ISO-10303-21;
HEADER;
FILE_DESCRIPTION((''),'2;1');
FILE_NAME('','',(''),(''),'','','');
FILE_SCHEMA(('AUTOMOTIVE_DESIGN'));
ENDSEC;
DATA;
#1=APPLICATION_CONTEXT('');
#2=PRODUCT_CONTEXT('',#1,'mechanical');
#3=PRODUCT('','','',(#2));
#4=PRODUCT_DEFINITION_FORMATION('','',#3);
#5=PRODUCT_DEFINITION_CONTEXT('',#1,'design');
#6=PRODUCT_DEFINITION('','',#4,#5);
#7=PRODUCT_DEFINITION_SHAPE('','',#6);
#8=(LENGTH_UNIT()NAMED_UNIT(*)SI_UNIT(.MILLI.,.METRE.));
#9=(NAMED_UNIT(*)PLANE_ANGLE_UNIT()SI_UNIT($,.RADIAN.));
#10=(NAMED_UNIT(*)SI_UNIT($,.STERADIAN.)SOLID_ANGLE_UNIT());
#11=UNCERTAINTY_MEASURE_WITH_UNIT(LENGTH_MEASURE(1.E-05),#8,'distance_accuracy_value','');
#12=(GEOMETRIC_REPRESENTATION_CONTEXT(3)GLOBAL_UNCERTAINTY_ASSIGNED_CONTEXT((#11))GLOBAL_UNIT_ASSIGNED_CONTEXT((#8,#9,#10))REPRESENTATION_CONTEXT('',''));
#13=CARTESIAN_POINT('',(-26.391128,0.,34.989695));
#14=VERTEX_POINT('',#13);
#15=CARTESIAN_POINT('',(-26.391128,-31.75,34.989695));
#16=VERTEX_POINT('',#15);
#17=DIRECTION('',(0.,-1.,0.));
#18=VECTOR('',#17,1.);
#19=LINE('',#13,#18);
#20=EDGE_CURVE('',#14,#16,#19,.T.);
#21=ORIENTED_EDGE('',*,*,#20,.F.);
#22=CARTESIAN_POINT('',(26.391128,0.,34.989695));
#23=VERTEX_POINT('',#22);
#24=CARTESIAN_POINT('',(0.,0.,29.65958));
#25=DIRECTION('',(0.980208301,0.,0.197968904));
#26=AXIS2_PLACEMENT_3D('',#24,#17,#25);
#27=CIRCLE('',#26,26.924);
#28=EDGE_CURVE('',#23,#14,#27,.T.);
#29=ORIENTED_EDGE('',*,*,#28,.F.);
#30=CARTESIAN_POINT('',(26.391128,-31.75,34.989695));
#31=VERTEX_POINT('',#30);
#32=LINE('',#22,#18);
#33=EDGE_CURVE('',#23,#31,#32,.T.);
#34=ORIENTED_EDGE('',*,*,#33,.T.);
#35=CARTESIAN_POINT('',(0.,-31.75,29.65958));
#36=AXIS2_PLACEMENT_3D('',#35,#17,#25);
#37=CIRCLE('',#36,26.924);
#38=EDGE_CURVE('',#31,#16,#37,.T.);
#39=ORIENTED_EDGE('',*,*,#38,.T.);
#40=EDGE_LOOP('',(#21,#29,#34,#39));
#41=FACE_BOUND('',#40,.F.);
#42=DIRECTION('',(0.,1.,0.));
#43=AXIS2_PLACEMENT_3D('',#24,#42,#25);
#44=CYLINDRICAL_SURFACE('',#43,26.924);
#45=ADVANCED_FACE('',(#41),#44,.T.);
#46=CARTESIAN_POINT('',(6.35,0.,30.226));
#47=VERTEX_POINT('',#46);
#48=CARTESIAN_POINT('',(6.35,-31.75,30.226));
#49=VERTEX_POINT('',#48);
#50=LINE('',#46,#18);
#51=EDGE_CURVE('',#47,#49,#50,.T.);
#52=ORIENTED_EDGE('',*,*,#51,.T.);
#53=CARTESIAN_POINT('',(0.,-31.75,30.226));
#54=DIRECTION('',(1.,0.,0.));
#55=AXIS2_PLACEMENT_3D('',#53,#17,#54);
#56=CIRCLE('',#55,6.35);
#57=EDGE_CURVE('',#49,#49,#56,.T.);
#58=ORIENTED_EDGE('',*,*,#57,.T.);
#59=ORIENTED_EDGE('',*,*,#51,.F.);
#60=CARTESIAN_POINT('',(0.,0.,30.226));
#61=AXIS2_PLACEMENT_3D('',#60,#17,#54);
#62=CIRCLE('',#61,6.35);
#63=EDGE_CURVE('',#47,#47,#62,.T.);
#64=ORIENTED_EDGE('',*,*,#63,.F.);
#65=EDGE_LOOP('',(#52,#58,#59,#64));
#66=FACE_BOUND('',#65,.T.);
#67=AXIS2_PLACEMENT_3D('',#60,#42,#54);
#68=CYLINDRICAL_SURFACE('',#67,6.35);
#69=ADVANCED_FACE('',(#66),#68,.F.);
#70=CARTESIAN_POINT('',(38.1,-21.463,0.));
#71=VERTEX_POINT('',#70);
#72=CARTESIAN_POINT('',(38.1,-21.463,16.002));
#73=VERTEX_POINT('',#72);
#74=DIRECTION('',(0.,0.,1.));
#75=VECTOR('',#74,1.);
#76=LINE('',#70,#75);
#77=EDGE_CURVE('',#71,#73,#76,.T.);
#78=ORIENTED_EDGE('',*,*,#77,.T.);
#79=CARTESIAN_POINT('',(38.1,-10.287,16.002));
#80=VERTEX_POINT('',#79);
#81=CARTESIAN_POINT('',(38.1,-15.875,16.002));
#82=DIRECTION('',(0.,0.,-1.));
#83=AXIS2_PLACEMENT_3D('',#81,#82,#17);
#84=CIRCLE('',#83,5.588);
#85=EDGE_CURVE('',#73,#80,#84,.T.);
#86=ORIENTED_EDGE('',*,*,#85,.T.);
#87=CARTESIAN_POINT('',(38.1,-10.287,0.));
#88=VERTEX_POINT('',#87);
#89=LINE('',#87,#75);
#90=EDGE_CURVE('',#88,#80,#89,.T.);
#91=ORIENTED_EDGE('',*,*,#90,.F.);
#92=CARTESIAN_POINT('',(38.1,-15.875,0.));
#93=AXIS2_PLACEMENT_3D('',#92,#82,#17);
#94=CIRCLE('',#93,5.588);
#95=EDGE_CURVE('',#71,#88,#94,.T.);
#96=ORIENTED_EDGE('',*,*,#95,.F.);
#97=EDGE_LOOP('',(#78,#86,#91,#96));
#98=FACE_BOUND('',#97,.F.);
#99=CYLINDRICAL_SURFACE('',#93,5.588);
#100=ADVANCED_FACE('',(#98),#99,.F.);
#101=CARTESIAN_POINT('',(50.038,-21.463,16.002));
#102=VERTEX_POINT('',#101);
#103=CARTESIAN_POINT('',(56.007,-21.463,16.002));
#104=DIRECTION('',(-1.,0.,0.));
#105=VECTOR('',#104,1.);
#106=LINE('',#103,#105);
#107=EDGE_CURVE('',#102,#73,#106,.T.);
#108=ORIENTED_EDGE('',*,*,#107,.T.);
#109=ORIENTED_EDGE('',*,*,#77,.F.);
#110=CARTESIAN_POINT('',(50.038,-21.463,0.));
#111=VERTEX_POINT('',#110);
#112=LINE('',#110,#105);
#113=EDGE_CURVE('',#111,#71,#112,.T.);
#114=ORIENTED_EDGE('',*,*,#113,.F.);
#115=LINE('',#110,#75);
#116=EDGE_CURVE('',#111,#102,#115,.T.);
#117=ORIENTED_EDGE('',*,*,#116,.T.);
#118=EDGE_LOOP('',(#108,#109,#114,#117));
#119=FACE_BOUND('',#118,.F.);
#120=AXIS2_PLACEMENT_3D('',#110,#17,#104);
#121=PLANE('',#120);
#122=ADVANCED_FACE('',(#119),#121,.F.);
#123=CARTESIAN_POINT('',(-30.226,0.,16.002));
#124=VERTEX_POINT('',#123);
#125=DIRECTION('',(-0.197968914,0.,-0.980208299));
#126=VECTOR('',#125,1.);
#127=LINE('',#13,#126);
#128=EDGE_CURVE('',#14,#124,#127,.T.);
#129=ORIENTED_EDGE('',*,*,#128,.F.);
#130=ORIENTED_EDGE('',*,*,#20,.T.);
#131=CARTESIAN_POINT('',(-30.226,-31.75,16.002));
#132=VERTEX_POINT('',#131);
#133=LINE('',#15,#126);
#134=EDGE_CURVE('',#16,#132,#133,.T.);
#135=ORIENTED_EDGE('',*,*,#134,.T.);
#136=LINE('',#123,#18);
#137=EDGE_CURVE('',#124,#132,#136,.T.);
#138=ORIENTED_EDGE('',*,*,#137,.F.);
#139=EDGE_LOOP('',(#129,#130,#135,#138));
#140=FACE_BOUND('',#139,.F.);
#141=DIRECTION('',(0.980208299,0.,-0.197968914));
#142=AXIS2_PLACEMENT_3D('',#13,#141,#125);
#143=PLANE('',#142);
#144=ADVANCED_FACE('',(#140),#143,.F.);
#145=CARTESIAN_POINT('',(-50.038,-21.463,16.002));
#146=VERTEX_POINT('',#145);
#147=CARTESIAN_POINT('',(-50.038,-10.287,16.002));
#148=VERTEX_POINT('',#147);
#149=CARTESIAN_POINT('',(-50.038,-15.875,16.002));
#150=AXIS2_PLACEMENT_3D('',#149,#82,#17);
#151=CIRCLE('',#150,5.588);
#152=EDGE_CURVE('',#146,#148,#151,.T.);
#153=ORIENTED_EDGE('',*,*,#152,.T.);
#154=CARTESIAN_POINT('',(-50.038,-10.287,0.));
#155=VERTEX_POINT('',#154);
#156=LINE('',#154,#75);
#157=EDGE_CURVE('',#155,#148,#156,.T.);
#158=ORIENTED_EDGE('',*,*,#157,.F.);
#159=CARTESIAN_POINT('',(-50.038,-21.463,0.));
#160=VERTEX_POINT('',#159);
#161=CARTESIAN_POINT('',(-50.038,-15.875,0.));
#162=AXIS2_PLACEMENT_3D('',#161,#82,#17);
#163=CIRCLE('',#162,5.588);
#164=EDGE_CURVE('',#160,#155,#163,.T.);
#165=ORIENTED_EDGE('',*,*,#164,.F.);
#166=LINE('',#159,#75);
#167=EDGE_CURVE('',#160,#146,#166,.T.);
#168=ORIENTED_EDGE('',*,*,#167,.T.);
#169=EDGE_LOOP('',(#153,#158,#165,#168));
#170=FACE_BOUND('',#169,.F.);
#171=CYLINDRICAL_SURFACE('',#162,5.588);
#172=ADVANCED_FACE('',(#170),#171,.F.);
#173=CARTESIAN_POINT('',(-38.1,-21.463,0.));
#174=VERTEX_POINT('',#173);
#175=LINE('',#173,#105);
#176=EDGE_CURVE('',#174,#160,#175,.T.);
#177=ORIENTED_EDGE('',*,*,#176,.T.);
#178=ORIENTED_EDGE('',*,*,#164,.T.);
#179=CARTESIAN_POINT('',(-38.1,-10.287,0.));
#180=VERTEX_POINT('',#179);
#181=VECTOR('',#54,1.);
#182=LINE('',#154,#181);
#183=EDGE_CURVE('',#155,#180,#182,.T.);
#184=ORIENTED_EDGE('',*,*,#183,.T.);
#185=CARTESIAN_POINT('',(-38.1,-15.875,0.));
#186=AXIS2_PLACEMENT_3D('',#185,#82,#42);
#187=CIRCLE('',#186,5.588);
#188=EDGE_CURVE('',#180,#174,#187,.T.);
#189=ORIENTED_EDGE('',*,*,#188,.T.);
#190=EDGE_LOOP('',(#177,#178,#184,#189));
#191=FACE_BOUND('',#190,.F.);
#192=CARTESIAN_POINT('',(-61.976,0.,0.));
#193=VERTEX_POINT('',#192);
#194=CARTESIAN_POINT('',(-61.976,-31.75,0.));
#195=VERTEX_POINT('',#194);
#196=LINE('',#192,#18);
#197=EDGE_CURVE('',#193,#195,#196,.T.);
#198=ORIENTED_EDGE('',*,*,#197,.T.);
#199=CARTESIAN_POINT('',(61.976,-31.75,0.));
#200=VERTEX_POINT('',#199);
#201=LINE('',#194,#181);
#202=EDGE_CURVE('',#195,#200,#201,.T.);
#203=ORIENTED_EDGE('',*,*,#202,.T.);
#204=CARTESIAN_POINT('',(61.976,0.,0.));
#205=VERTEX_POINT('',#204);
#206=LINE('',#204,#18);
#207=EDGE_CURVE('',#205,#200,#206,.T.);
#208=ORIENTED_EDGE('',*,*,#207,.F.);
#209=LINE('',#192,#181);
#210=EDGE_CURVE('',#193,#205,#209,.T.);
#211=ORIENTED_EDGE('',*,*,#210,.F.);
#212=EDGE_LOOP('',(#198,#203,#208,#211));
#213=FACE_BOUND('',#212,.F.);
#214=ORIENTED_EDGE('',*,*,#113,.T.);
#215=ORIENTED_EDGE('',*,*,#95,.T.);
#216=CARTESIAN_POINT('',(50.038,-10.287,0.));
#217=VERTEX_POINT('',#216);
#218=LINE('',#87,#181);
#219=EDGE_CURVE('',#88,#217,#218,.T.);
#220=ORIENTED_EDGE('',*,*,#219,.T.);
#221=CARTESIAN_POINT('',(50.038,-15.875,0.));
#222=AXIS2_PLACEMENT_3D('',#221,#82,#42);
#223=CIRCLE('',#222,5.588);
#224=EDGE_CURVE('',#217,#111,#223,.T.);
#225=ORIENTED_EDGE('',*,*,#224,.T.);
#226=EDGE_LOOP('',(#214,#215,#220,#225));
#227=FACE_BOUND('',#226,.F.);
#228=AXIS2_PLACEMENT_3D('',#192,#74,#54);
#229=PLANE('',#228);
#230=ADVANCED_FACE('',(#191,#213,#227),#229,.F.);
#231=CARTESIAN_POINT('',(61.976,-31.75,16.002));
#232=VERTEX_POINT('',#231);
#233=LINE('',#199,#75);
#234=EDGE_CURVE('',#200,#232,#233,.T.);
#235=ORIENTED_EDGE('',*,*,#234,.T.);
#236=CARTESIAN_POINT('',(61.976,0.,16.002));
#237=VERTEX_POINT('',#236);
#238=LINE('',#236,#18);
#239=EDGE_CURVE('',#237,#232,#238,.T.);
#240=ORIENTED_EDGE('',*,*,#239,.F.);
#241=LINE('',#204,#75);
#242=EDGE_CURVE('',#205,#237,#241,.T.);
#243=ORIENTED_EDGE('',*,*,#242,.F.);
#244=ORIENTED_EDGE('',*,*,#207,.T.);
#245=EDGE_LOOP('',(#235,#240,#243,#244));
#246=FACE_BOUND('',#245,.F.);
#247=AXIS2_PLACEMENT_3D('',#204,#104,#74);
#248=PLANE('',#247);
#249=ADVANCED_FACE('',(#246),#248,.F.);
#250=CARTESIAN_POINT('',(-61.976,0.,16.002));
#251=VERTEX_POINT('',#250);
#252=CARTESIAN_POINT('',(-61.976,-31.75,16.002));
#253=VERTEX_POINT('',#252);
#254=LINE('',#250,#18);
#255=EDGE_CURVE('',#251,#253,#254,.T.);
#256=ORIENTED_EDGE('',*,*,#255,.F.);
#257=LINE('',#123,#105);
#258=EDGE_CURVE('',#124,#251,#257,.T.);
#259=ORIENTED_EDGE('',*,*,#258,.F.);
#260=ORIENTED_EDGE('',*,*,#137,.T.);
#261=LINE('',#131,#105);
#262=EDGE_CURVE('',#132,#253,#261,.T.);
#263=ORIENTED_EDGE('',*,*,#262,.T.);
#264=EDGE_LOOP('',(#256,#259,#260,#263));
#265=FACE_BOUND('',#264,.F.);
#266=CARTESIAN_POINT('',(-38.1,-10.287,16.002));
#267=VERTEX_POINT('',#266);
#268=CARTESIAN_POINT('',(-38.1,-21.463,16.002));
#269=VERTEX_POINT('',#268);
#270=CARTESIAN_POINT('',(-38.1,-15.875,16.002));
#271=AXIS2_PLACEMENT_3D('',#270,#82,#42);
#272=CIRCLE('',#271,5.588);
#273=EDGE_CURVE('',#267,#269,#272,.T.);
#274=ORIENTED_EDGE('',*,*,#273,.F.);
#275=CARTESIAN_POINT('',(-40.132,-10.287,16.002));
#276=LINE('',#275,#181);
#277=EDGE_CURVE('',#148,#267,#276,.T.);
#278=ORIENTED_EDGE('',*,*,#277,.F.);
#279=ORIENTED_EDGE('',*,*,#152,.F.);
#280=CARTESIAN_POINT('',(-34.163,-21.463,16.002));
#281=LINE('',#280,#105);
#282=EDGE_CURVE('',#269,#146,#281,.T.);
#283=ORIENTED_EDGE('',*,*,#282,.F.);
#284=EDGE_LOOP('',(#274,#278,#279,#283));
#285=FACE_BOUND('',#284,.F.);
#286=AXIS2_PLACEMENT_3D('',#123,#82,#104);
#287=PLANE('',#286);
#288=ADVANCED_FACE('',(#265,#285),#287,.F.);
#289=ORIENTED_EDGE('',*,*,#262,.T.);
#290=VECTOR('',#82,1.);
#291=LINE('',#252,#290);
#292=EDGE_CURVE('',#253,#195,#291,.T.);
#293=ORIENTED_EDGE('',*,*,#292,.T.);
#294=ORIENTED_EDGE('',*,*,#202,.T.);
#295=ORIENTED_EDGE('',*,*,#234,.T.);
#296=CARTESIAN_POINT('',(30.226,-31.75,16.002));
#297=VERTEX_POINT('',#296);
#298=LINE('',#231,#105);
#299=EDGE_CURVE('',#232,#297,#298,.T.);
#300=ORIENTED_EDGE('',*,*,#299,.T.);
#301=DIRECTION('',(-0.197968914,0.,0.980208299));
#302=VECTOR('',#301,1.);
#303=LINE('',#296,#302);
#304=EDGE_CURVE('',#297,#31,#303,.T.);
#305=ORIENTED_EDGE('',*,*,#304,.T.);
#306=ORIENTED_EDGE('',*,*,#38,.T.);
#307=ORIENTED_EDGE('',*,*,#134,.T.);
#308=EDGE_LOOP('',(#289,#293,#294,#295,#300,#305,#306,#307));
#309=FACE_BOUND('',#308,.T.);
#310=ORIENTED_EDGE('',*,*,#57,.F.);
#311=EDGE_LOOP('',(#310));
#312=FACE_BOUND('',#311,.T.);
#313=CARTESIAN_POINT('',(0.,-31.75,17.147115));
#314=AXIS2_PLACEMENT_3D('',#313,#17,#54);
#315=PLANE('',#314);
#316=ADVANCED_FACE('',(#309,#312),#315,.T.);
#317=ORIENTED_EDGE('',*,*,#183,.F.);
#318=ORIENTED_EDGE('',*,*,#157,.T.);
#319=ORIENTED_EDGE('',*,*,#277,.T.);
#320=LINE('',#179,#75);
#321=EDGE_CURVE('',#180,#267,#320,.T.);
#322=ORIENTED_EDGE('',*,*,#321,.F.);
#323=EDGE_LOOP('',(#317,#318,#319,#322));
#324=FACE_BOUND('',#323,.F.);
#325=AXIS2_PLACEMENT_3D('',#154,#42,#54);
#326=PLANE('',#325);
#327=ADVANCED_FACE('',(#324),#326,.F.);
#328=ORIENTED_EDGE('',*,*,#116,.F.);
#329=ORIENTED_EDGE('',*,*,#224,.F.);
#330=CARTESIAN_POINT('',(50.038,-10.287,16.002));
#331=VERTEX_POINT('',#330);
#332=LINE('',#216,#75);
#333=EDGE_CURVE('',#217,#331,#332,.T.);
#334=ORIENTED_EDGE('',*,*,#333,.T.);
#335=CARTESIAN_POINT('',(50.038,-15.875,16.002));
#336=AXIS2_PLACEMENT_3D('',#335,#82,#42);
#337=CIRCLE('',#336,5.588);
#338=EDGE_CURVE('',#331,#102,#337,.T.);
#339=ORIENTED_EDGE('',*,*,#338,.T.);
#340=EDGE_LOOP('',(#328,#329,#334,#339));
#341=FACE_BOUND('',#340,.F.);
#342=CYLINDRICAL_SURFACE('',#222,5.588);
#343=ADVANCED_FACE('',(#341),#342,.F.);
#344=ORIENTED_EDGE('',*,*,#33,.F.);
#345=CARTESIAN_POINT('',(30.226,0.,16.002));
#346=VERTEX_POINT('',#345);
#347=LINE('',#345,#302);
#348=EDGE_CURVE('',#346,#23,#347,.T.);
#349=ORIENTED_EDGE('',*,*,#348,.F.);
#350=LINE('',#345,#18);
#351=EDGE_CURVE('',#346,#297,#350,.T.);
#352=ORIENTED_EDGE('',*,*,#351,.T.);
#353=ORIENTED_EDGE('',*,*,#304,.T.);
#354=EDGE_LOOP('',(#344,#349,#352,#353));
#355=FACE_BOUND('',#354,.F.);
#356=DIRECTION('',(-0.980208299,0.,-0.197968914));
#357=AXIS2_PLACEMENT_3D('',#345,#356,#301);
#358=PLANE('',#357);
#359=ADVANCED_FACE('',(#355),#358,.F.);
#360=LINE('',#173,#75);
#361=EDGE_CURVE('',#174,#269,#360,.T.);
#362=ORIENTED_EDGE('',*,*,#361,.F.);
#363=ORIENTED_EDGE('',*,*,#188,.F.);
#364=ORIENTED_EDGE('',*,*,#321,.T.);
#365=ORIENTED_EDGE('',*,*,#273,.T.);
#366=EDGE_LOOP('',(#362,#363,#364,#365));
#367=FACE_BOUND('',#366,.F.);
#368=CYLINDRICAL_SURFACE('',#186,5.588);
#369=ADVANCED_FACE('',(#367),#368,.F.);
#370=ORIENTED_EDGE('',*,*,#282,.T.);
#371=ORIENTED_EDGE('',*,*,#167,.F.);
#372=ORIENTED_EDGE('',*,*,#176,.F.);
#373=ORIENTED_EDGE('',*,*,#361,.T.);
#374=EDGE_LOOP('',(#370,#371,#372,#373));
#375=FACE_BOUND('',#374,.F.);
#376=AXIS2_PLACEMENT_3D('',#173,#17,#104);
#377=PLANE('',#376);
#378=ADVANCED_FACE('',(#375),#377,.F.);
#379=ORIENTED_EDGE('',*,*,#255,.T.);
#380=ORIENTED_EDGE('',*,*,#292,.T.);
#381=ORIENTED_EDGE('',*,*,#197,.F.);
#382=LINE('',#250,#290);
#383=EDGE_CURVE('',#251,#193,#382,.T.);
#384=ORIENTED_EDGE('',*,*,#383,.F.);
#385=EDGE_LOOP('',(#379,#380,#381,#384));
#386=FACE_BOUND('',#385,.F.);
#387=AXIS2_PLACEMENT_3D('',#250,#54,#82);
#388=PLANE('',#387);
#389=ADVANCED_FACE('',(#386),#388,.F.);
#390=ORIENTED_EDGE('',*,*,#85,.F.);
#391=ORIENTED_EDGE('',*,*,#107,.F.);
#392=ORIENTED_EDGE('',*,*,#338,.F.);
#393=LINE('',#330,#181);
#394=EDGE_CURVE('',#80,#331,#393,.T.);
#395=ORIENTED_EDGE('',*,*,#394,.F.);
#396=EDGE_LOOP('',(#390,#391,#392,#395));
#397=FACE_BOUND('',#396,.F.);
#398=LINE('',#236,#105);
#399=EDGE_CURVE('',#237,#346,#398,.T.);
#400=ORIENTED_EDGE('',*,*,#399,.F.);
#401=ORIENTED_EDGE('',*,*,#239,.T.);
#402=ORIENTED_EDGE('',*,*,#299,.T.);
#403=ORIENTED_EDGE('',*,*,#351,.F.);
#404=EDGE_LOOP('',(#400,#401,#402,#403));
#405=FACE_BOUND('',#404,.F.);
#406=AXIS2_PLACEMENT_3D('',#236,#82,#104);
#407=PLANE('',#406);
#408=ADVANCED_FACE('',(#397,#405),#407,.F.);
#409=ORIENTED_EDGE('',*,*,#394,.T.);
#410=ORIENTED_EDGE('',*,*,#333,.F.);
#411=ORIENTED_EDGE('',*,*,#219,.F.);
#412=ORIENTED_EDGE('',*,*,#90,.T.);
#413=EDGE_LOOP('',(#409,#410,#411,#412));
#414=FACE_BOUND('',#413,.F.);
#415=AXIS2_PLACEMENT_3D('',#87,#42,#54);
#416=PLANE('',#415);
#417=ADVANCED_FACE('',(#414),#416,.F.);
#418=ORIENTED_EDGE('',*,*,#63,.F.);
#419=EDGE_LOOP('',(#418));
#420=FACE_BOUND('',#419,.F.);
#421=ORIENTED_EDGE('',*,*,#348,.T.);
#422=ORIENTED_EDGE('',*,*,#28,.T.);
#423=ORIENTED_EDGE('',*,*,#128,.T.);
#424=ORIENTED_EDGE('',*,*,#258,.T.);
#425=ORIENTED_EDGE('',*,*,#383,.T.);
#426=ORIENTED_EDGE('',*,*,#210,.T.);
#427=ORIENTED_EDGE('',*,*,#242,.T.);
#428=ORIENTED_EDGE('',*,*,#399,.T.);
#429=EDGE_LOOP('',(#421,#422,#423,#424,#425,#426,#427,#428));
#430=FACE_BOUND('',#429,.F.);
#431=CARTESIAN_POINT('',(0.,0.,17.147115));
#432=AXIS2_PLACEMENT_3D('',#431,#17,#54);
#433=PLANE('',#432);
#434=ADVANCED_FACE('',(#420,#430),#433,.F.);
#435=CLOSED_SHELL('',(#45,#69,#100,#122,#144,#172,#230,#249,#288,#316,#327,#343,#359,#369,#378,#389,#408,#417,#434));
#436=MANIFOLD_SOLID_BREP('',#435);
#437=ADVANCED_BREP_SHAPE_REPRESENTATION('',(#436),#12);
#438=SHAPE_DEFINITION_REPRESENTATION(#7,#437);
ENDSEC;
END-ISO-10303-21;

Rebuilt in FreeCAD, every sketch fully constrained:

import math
import FreeCAD as App
import Part
import Sketcher
from FreeCAD import Vector
Q = App.Units.Quantity

doc = App.newDocument("Part")
body = doc.addObject("PartDesign::Body", "Body")

# Sketch on XZ plane
sketch1 = body.newObject("Sketcher::SketchObject", "Sketch")
sketch1.AttachmentSupport = (doc.getObject("XZ_Plane"), [""])
sketch1.MapMode = "FlatFace"
sketch1.addGeometry([
    Part.LineSegment(Vector(-62, 16, 0), Vector(-62, 0, 0)),  # 0
    Part.LineSegment(Vector(-62, 0, 0), Vector(62, 0, 0)),  # 1
    Part.LineSegment(Vector(62, 0, 0), Vector(62, 16, 0)),  # 2
    Part.LineSegment(Vector(62, 16, 0), Vector(30, 16, 0)),  # 3
    Part.LineSegment(Vector(30, 16, 0), Vector(26, 35, 0)),  # 4
    Part.ArcOfCircle(Part.Circle(Vector(0, 30, 0), Vector(0, 0, 1), 27), math.radians(11), math.radians(169)),  # 5
    Part.LineSegment(Vector(-26, 35, 0), Vector(-30, 16, 0)),  # 6
    Part.LineSegment(Vector(-30, 16, 0), Vector(-62, 16, 0)),  # 7
    Part.Circle(Vector(0, 30, 0), Vector(0, 0, 1), 6),  # 8
], False)
sketch1.addConstraint([
    Sketcher.Constraint("Coincident", 0, 2, 1, 1),
    Sketcher.Constraint("Coincident", 1, 2, 2, 1),
    Sketcher.Constraint("Coincident", 2, 2, 3, 1),
    Sketcher.Constraint("Coincident", 3, 2, 4, 1),
    Sketcher.Constraint("Tangent", 4, 2, 5, 1),
    Sketcher.Constraint("Tangent", 5, 2, 6, 1),
    Sketcher.Constraint("Coincident", 6, 2, 7, 1),
    Sketcher.Constraint("Coincident", 7, 2, 0, 1),
    Sketcher.Constraint("Vertical", 0),
    Sketcher.Constraint("Horizontal", 1),
    Sketcher.Constraint("Vertical", 2),
    Sketcher.Constraint("Horizontal", 3),
    Sketcher.Constraint("Horizontal", 7),
    Sketcher.Constraint("Symmetric", 0, 2, 1, 2, -1, 1),
    Sketcher.Constraint("Symmetric", 4, 2, 5, 2, -2),
    Sketcher.Constraint("PointOnObject", 8, 3, -2),
    Sketcher.Constraint("Horizontal", 3, 2, 6, 2),
    Sketcher.Constraint("Diameter", 8, Q("0.5 in")),
    Sketcher.Constraint("Radius", 5, Q("1.06 in")),
    Sketcher.Constraint("DistanceX", 1, 1, 1, 2, Q("4.88 in")),
    Sketcher.Constraint("DistanceX", 3, 2, 3, 1, Q("1.25 in")),
    Sketcher.Constraint("DistanceY", 0, 2, 0, 1, Q("0.63 in")),
    Sketcher.Constraint("DistanceY", -1, 1, 8, 3, Q("1.19 in")),
    Sketcher.Constraint("DistanceY", -1, 1, 5, 3, Q("1.1677 in")),
])
pad1 = body.newObject("PartDesign::Pad", "Pad")
pad1.Profile = sketch1
pad1.Length = Q("1.25 in")

# Sketch on XY plane
sketch2 = body.newObject("Sketcher::SketchObject", "Sketch001")
sketch2.AttachmentSupport = (doc.getObject("XY_Plane"), [""])
sketch2.MapMode = "FlatFace"
sketch2.addGeometry([
    Part.LineSegment(Vector(-38, -21, 0), Vector(-50, -21, 0)),  # 0
    Part.ArcOfCircle(Part.Circle(Vector(-50, -16, 0), Vector(0, 0, 1), 6), math.radians(90), math.radians(270)),  # 1
    Part.LineSegment(Vector(-50, -10, 0), Vector(-38, -10, 0)),  # 2
    Part.ArcOfCircle(Part.Circle(Vector(-38, -16, 0), Vector(0, 0, 1), 6), math.radians(-90), math.radians(90)),  # 3
    Part.LineSegment(Vector(50, -21, 0), Vector(38, -21, 0)),  # 4
    Part.ArcOfCircle(Part.Circle(Vector(38, -16, 0), Vector(0, 0, 1), 6), math.radians(90), math.radians(270)),  # 5
    Part.LineSegment(Vector(38, -10, 0), Vector(50, -10, 0)),  # 6
    Part.ArcOfCircle(Part.Circle(Vector(50, -16, 0), Vector(0, 0, 1), 6), math.radians(-90), math.radians(90)),  # 7
], False)
sketch2.addConstraint([
    Sketcher.Constraint("Tangent", 0, 2, 1, 2),
    Sketcher.Constraint("Tangent", 1, 1, 2, 1),
    Sketcher.Constraint("Tangent", 2, 2, 3, 2),
    Sketcher.Constraint("Tangent", 3, 1, 0, 1),
    Sketcher.Constraint("Tangent", 4, 2, 5, 2),
    Sketcher.Constraint("Tangent", 5, 1, 6, 1),
    Sketcher.Constraint("Tangent", 6, 2, 7, 2),
    Sketcher.Constraint("Tangent", 7, 1, 4, 1),
    Sketcher.Constraint("Horizontal", 0),
    Sketcher.Constraint("Horizontal", 2),
    Sketcher.Constraint("Horizontal", 4),
    Sketcher.Constraint("Horizontal", 6),
    Sketcher.Constraint("Equal", 3, 5),
    Sketcher.Constraint("Symmetric", 3, 3, 5, 3, -2),
    Sketcher.Constraint("Equal", 2, 4),
    Sketcher.Constraint("Radius", 1, Q("0.22 in")),
    Sketcher.Constraint("DistanceX", 3, 3, 5, 3, Q("3 in")),
    Sketcher.Constraint("DistanceX", 0, 2, 0, 1, Q("0.47 in")),
    Sketcher.Constraint("DistanceY", 1, 3, -1, 1, Q("0.625 in")),
])
pocket1 = body.newObject("PartDesign::Pocket", "Pocket")
pocket1.Profile = sketch2
pocket1.Length = Q("5 in")
pocket1.Reversed = True

doc.recompute()
